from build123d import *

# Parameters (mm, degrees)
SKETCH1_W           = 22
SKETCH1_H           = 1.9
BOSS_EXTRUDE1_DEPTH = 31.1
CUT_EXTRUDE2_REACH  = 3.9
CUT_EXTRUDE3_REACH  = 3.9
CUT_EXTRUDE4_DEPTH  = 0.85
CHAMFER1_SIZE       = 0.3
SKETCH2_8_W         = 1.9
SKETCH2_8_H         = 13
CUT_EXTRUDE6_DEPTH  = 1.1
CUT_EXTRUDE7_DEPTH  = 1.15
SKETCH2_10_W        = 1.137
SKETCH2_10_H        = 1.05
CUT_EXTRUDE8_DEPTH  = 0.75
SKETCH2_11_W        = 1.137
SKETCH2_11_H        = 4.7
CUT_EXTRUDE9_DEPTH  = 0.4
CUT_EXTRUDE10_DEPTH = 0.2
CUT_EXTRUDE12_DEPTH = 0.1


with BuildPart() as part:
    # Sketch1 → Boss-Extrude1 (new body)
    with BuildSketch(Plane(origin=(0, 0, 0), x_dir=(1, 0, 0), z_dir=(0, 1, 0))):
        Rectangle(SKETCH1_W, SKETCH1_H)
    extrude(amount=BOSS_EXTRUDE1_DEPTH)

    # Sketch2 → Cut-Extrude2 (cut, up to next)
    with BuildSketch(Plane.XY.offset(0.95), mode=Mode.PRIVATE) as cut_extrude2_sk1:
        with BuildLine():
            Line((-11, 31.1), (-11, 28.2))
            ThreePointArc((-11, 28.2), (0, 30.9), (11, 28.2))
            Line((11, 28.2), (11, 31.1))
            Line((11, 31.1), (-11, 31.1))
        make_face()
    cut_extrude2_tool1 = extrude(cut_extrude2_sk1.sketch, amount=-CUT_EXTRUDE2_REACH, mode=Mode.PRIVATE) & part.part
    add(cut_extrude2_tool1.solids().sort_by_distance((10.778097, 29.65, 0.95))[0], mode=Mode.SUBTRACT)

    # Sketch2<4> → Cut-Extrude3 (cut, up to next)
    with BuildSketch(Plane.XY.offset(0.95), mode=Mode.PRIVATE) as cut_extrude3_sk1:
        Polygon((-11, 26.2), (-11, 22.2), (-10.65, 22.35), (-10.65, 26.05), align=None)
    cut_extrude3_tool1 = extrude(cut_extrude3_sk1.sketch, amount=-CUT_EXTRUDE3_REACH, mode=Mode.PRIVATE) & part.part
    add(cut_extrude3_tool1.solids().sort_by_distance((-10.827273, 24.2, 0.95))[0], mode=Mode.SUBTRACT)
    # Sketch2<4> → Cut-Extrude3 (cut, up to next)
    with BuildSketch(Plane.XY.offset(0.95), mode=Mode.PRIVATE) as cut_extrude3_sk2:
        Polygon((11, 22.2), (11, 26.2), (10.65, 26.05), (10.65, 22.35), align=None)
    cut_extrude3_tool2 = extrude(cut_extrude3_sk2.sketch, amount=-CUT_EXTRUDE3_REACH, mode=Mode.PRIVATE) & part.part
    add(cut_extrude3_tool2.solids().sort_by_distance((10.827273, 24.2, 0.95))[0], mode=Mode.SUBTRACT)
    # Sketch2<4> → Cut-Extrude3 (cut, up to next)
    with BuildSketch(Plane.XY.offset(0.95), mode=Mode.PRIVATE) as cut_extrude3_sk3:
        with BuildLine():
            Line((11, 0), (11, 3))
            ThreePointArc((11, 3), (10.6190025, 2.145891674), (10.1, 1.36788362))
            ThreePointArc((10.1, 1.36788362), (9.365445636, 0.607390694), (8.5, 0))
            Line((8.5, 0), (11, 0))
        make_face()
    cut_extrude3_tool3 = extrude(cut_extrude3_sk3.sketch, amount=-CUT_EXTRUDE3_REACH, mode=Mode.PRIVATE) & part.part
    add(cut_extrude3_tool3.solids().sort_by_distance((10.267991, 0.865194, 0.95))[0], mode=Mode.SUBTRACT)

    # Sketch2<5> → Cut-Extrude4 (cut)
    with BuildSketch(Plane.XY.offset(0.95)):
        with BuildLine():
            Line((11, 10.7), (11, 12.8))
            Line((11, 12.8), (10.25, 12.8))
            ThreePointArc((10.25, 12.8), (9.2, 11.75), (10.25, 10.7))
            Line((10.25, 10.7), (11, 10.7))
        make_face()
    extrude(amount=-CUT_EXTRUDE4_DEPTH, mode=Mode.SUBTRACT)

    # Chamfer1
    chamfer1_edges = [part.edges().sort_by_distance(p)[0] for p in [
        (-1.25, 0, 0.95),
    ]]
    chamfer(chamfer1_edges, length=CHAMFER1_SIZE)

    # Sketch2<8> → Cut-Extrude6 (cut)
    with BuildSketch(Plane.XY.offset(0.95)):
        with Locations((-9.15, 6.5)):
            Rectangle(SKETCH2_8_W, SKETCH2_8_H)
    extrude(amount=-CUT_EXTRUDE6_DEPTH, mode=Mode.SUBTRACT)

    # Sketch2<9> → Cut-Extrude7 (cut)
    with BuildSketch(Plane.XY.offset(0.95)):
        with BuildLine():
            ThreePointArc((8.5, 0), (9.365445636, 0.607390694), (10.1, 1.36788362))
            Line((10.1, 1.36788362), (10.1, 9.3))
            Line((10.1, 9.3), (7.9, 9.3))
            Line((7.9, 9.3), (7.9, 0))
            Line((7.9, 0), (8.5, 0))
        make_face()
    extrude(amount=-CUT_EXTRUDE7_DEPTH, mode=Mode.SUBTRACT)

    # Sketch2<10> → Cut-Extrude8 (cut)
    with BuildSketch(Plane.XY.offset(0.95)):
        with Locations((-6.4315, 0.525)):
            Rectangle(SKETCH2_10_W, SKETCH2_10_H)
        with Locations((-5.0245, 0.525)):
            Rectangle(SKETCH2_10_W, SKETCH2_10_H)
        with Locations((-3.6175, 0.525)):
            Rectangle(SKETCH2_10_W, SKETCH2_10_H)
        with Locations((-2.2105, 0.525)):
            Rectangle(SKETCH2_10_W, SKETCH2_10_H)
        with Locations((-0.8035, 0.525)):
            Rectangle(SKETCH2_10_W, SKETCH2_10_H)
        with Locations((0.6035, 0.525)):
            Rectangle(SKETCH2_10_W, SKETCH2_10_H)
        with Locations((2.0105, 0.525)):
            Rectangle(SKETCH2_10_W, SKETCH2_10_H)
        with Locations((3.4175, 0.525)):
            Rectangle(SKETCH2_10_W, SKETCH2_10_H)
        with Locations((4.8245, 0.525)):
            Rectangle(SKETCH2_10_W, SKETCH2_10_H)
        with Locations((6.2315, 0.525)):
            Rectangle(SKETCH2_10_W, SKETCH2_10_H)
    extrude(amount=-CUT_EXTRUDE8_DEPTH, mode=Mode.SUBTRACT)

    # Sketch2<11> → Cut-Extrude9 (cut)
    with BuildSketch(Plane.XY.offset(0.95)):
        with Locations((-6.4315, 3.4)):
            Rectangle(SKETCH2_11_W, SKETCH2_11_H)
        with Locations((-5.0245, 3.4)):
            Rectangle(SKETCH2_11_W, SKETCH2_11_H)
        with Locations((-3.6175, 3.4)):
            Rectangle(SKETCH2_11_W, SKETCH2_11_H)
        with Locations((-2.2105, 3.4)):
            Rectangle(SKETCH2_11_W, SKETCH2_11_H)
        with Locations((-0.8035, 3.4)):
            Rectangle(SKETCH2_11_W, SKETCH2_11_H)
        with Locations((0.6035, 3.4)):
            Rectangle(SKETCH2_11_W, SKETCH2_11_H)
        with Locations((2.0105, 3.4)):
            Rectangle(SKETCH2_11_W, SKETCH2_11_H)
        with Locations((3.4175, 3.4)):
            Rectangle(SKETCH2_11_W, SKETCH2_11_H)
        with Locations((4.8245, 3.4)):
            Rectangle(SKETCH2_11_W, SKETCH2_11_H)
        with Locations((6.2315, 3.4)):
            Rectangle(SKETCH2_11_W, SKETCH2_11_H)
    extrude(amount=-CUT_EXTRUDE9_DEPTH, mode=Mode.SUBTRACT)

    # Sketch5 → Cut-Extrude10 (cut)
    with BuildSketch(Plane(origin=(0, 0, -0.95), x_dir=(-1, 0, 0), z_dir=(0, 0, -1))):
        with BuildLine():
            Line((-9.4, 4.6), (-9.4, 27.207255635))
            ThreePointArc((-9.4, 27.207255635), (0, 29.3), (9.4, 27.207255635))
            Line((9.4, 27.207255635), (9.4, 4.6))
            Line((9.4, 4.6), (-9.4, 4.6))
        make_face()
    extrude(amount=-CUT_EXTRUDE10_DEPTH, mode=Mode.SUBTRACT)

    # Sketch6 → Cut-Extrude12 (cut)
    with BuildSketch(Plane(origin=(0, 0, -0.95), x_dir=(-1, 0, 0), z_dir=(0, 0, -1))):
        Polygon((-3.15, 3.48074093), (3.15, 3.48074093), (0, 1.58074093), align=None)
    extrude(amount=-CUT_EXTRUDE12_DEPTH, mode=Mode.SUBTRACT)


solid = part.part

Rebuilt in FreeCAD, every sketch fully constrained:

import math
import FreeCAD as App
import Part
import Sketcher

V = App.Vector


def edges_at(feature, points):
    """Names of the edges that pass closest to the given points."""
    edges = feature.Shape.Edges
    near = lambda p: min(range(len(edges)), key=lambda i: edges[i].distToShape(Part.Vertex(*p))[0])
    return sorted({f"Edge{near(p) + 1}" for p in points})


def add_polygon(sketch, points):
    """Adds a closed chain of lines whose ends are joined by coincident constraints."""
    first, n = sketch.GeometryCount, len(points)
    for a, b in zip(points, points[1:] + points[:1]):
        sketch.addGeometry(Part.LineSegment(App.Vector(*a, 0), App.Vector(*b, 0)), False)
    for i in range(n):
        sketch.addConstraint(Sketcher.Constraint("Coincident", first + i, 2, first + (i + 1) % n, 1))

doc = App.newDocument("Part")
params = doc.addObject("Spreadsheet::Sheet", "Params")
for row, (alias, value) in enumerate([
    ("sketch1_width", "22 mm"),
    ("sketch1_height", "1.9 mm"),
    ("pad1_length", "31.1 mm"),
    ("sketch2_width", "22 mm"),
    ("sketch2_height", "2.9 mm"),
    ("sketch3_height", "4 mm"),
    ("sketch3_height2", "3.7 mm"),
    ("sketch4_height", "4 mm"),
    ("sketch4_height2", "3.7 mm"),
    ("sketch5_height", "3 mm"),
    ("sketch5_radius", "5.55 mm"),
    ("sketch5_width", "2.5 mm"),
    ("sketch6_radius", "1.05 mm"),
    ("sketch6_width", "0.75 mm"),
    ("pocket5_length", "0.85 mm"),
    ("chamfer_size", "0.3 mm"),
    ("sketch7_height", "13 mm"),
    ("sketch7_width", "1.9 mm"),
    ("pocket6_length", "1.1 mm"),
    ("sketch8_radius", "5.55 mm"),
    ("sketch8_width", "2.2 mm"),
    ("sketch8_width2", "0.6 mm"),
    ("sketch8_height", "9.3 mm"),
    ("pocket7_length", "1.15 mm"),
    ("sketch9_height", "1.05 mm"),
    ("pocket8_length", "0.75 mm"),
    ("sketch10_height", "4.7 mm"),
    ("pocket9_length", "0.4 mm"),
    ("sketch11_width", "18.8 mm"),
    ("pocket10_length", "0.2 mm"),
    ("sketch12_width", "6.3 mm"),
    ("pocket11_length", "0.1 mm"),
], start=1):
    params.set(f"A{row}", alias)
    params.set(f"B{row}", "=" + value)
    params.setAlias(f"B{row}", alias)

body = doc.addObject("PartDesign::Body", "Body")

# Sketch on XZ plane
sketch1 = body.newObject("Sketcher::SketchObject", "Sketch")
sketch1.AttachmentSupport = (doc.getObject("XZ_Plane"), [""])
sketch1.MapMode = "FlatFace"
add_polygon(sketch1, [(-11, -0.9), (-11, 0.9), (11, 0.9), (11, -0.9)])  # lines 0-3
sketch1.addConstraint(Sketcher.Constraint("Vertical", 0))
sketch1.addConstraint(Sketcher.Constraint("Horizontal", 1))
sketch1.addConstraint(Sketcher.Constraint("Vertical", 2))
sketch1.addConstraint(Sketcher.Constraint("Horizontal", 3))
sketch1.addConstraint(Sketcher.Constraint("Symmetric", 0, 2, 2, 2, -1, 1))
sketch1.addConstraint(Sketcher.Constraint("DistanceX", 1, 1, 1, 2, 22.0))
sketch1.addConstraint(Sketcher.Constraint("DistanceY", 0, 1, 0, 2, 1.9))
sketch1.setExpression("Constraints[9]", "Params.sketch1_width")
sketch1.setExpression("Constraints[10]", "Params.sketch1_height")
pad1 = body.newObject("PartDesign::Pad", "Pad")
pad1.Profile = sketch1
pad1.setExpression("Length", "Params.pad1_length")
pad1.Reversed = True

# Sketch on XY plane
sketch2 = body.newObject("Sketcher::SketchObject", "Sketch001")
sketch2.AttachmentSupport = (doc.getObject("XY_Plane"), [""])
sketch2.MapMode = "FlatFace"
sketch2.AttachmentOffset = App.Placement(V(0, 0, 0.95), App.Rotation())
sketch2.addGeometry(Part.LineSegment(V(-11, 31.1, 0), V(-11, 28.2, 0)), False)
sketch2.addGeometry(Part.ArcOfCircle(Part.Circle(V(0, 7.1, 0), V(0, 0, 1), 23.8), math.radians(62), math.radians(118)), False)
sketch2.addGeometry(Part.LineSegment(V(11, 28.2, 0), V(11, 31.1, 0)), False)
sketch2.addGeometry(Part.LineSegment(V(11, 31.1, 0), V(-11, 31.1, 0)), False)
sketch2.addConstraint(Sketcher.Constraint("Coincident", 0, 2, 1, 2))
sketch2.addConstraint(Sketcher.Constraint("Coincident", 1, 1, 2, 1))
sketch2.addConstraint(Sketcher.Constraint("Coincident", 2, 2, 3, 1))
sketch2.addConstraint(Sketcher.Constraint("Coincident", 3, 2, 0, 1))
sketch2.addConstraint(Sketcher.Constraint("Vertical", 0))
sketch2.addConstraint(Sketcher.Constraint("Vertical", 2))
sketch2.addConstraint(Sketcher.Constraint("Horizontal", 3))
sketch2.addConstraint(Sketcher.Constraint("Symmetric", 0, 2, 1, 1, -2))
sketch2.addConstraint(Sketcher.Constraint("DistanceX", 3, 2, 3, 1, 22.0))
sketch2.addConstraint(Sketcher.Constraint("DistanceY", 0, 2, 0, 1, 2.9))
sketch2.addConstraint(Sketcher.Constraint("DistanceY", -1, 1, 0, 2, 28.2))
sketch2.addConstraint(Sketcher.Constraint("Radius", 1, 23.757407))
sketch2.setExpression("Constraints[8]", "Params.sketch2_width")
sketch2.setExpression("Constraints[9]", "Params.sketch2_height")
pocket1 = body.newObject("PartDesign::Pocket", "Pocket")
pocket1.Profile = sketch2
pocket1.Type = "UpToFirst"

# Sketch on XY plane
sketch3 = body.newObject("Sketcher::SketchObject", "Sketch002")
sketch3.AttachmentSupport = (doc.getObject("XY_Plane"), [""])
sketch3.MapMode = "FlatFace"
sketch3.AttachmentOffset = App.Placement(V(0, 0, 0.95), App.Rotation())
add_polygon(sketch3, [(-11, 26.2), (-11, 22.2), (-10.65, 22.35), (-10.65, 26.05)])  # lines 0-3
sketch3.addConstraint(Sketcher.Constraint("Vertical", 0))
sketch3.addConstraint(Sketcher.Constraint("Vertical", 2))
sketch3.addConstraint(Sketcher.Constraint("Equal", 1, 3))
sketch3.addConstraint(Sketcher.Constraint("DistanceY", 0, 2, 0, 1, 4.0))
sketch3.addConstraint(Sketcher.Constraint("DistanceY", 2, 1, 2, 2, 3.7))
sketch3.addConstraint(Sketcher.Constraint("DistanceX", 0, 2, -1, 1, 11.0))
sketch3.addConstraint(Sketcher.Constraint("DistanceY", -1, 1, 0, 2, 22.2))
sketch3.addConstraint(Sketcher.Constraint("DistanceX", 1, 2, -1, 1, 10.65))
sketch3.setExpression("Constraints[7]", "Params.sketch3_height")
sketch3.setExpression("Constraints[8]", "Params.sketch3_height2")
pocket2 = body.newObject("PartDesign::Pocket", "Pocket001")
pocket2.Profile = sketch3
pocket2.Type = "UpToFirst"

# Sketch on XY plane
sketch4 = body.newObject("Sketcher::SketchObject", "Sketch003")
sketch4.AttachmentSupport = (doc.getObject("XY_Plane"), [""])
sketch4.MapMode = "FlatFace"
sketch4.AttachmentOffset = App.Placement(V(0, 0, 0.95), App.Rotation())
add_polygon(sketch4, [(11, 22.2), (11, 26.2), (10.65, 26.05), (10.65, 22.35)])  # lines 0-3
sketch4.addConstraint(Sketcher.Constraint("Vertical", 0))
sketch4.addConstraint(Sketcher.Constraint("Vertical", 2))
sketch4.addConstraint(Sketcher.Constraint("Equal", 1, 3))
sketch4.addConstraint(Sketcher.Constraint("DistanceY", 0, 1, 0, 2, 4.0))
sketch4.addConstraint(Sketcher.Constraint("DistanceY", 2, 2, 2, 1, 3.7))
sketch4.addConstraint(Sketcher.Constraint("DistanceX", -1, 1, 0, 2, 11.0))
sketch4.addConstraint(Sketcher.Constraint("DistanceY", -1, 1, 0, 2, 26.2))
sketch4.addConstraint(Sketcher.Constraint("DistanceX", -1, 1, 1, 2, 10.65))
sketch4.setExpression("Constraints[7]", "Params.sketch4_height")
sketch4.setExpression("Constraints[8]", "Params.sketch4_height2")
pocket3 = body.newObject("PartDesign::Pocket", "Pocket002")
pocket3.Profile = sketch4
pocket3.Type = "UpToFirst"

# Sketch on XY plane
sketch5 = body.newObject("Sketcher::SketchObject", "Sketch004")
sketch5.AttachmentSupport = (doc.getObject("XY_Plane"), [""])
sketch5.MapMode = "FlatFace"
sketch5.AttachmentOffset = App.Placement(V(0, 0, 0.95), App.Rotation())
sketch5.addGeometry(Part.LineSegment(V(11, 0, 0), V(11, 3, 0)), False)
sketch5.addGeometry(Part.ArcOfCircle(Part.Circle(V(5.8, 4.8, 0), V(0, 0, 1), 5.5), math.radians(-38.54), math.radians(-19.21)), False)
sketch5.addGeometry(Part.ArcOfCircle(Part.Circle(V(5.8, 4.8, 0), V(0, 0, 1), 5.5), math.radians(-60), math.radians(-39)), False)
sketch5.addGeometry(Part.LineSegment(V(8.5, 0, 0), V(11, 0, 0)), False)
sketch5.addConstraint(Sketcher.Constraint("Coincident", 0, 2, 1, 2))
sketch5.addConstraint(Sketcher.Constraint("Tangent", 1, 1, 2, 2))
sketch5.addConstraint(Sketcher.Constraint("Coincident", 2, 1, 3, 1))
sketch5.addConstraint(Sketcher.Constraint("Coincident", 3, 2, 0, 1))
sketch5.addConstraint(Sketcher.Constraint("Vertical", 0))
sketch5.addConstraint(Sketcher.Constraint("Horizontal", 3))
sketch5.addConstraint(Sketcher.Constraint("Equal", 1, 2))
sketch5.addConstraint(Sketcher.Constraint("PointOnObject", 2, 1, -1))
sketch5.addConstraint(Sketcher.Constraint("DistanceY", 0, 1, 0, 2, 3.0))
sketch5.addConstraint(Sketcher.Constraint("Radius", 1, 5.55))
sketch5.addConstraint(Sketcher.Constraint("DistanceX", 3, 1, 3, 2, 2.5))
sketch5.addConstraint(Sketcher.Constraint("DistanceX", -1, 1, 0, 2, 11.0))
sketch5.addConstraint(Sketcher.Constraint("DistanceX", -1, 1, 1, 1, 10.1))
sketch5.setExpression("Constraints[8]", "Params.sketch5_height")
sketch5.setExpression("Constraints[9]", "Params.sketch5_radius")
sketch5.setExpression("Constraints[10]", "Params.sketch5_width")
pocket4 = body.newObject("PartDesign::Pocket", "Pocket003")
pocket4.Profile = sketch5
pocket4.Type = "UpToFirst"

# Sketch on XY plane
sketch6 = body.newObject("Sketcher::SketchObject", "Sketch005")
sketch6.AttachmentSupport = (doc.getObject("XY_Plane"), [""])
sketch6.MapMode = "FlatFace"
sketch6.AttachmentOffset = App.Placement(V(0, 0, 0.95), App.Rotation())
sketch6.addGeometry(Part.LineSegment(V(11, 10.7, 0), V(11, 12.8, 0)), False)
sketch6.addGeometry(Part.LineSegment(V(11, 12.8, 0), V(10.2, 12.8, 0)), False)
sketch6.addGeometry(Part.ArcOfCircle(Part.Circle(V(10.2, 11.8, 0), V(0, 0, 1), 1.1), math.radians(90), math.radians(270)), False)
sketch6.addGeometry(Part.LineSegment(V(10.2, 10.7, 0), V(11, 10.7, 0)), False)
sketch6.addConstraint(Sketcher.Constraint("Coincident", 0, 2, 1, 1))
sketch6.addConstraint(Sketcher.Constraint("Tangent", 1, 2, 2, 1))
sketch6.addConstraint(Sketcher.Constraint("Tangent", 2, 2, 3, 1))
sketch6.addConstraint(Sketcher.Constraint("Coincident", 3, 2, 0, 1))
sketch6.addConstraint(Sketcher.Constraint("Vertical", 0))
sketch6.addConstraint(Sketcher.Constraint("Horizontal", 1))
sketch6.addConstraint(Sketcher.Constraint("Horizontal", 3))
sketch6.addConstraint(Sketcher.Constraint("Radius", 2, 1.05))
sketch6.addConstraint(Sketcher.Constraint("DistanceX", -1, 1, 0, 2, 11.0))
sketch6.addConstraint(Sketcher.Constraint("DistanceX", 1, 2, 1, 1, 0.75))
sketch6.addConstraint(Sketcher.Constraint("DistanceY", -1, 1, 0, 2, 12.8))
sketch6.setExpression("Constraints[7]", "Params.sketch6_radius")
sketch6.setExpression("Constraints[9]", "Params.sketch6_width")
pocket5 = body.newObject("PartDesign::Pocket", "Pocket004")
pocket5.Profile = sketch6
pocket5.setExpression("Length", "Params.pocket5_length")
doc.recompute()

chamfer = body.newObject("PartDesign::Chamfer", "Chamfer")
chamfer.Base = (pocket5, edges_at(pocket5, [(-1.25, 0, 0.95)]))
chamfer.setExpression("Size", "Params.chamfer_size")

# Sketch on XY plane
sketch7 = body.newObject("Sketcher::SketchObject", "Sketch006")
sketch7.AttachmentSupport = (doc.getObject("XY_Plane"), [""])
sketch7.MapMode = "FlatFace"
sketch7.AttachmentOffset = App.Placement(V(0, 0, 0.95), App.Rotation())
add_polygon(sketch7, [(-10.1, 13), (-10.1, 0), (-8.2, 0), (-8.2, 13)])  # lines 0-3
sketch7.addConstraint(Sketcher.Constraint("Vertical", 0))
sketch7.addConstraint(Sketcher.Constraint("Horizontal", 1))
sketch7.addConstraint(Sketcher.Constraint("Vertical", 2))
sketch7.addConstraint(Sketcher.Constraint("Horizontal", 3))
sketch7.addConstraint(Sketcher.Constraint("PointOnObject", 0, 2, -1))
sketch7.addConstraint(Sketcher.Constraint("DistanceY", 0, 2, 0, 1, 13.0))
sketch7.addConstraint(Sketcher.Constraint("DistanceX", 1, 1, 1, 2, 1.9))
sketch7.addConstraint(Sketcher.Constraint("DistanceX", 0, 2, -1, 1, 10.1))
sketch7.setExpression("Constraints[9]", "Params.sketch7_height")
sketch7.setExpression("Constraints[10]", "Params.sketch7_width")
pocket6 = body.newObject("PartDesign::Pocket", "Pocket005")
pocket6.Profile = sketch7
pocket6.setExpression("Length", "Params.pocket6_length")

# Sketch on XY plane
sketch8 = body.newObject("Sketcher::SketchObject", "Sketch007")
sketch8.AttachmentSupport = (doc.getObject("XY_Plane"), [""])
sketch8.MapMode = "FlatFace"
sketch8.AttachmentOffset = App.Placement(V(0, 0, 0.95), App.Rotation())
sketch8.addGeometry(Part.ArcOfCircle(Part.Circle(V(5.8, 4.8, 0), V(0, 0, 1), 5.5), math.radians(-60), math.radians(-39)), False)
sketch8.addGeometry(Part.LineSegment(V(10.1, 1.4, 0), V(10.1, 9.3, 0)), False)
sketch8.addGeometry(Part.LineSegment(V(10.1, 9.3, 0), V(7.9, 9.3, 0)), False)
sketch8.addGeometry(Part.LineSegment(V(7.9, 9.3, 0), V(7.9, 0, 0)), False)
sketch8.addGeometry(Part.LineSegment(V(7.9, 0, 0), V(8.5, 0, 0)), False)
sketch8.addConstraint(Sketcher.Constraint("Coincident", 0, 2, 1, 1))
sketch8.addConstraint(Sketcher.Constraint("Coincident", 1, 2, 2, 1))
sketch8.addConstraint(Sketcher.Constraint("Coincident", 2, 2, 3, 1))
sketch8.addConstraint(Sketcher.Constraint("Coincident", 3, 2, 4, 1))
sketch8.addConstraint(Sketcher.Constraint("Coincident", 4, 2, 0, 1))
sketch8.addConstraint(Sketcher.Constraint("Vertical", 1))
sketch8.addConstraint(Sketcher.Constraint("Horizontal", 2))
sketch8.addConstraint(Sketcher.Constraint("Vertical", 3))
sketch8.addConstraint(Sketcher.Constraint("Horizontal", 4))
sketch8.addConstraint(Sketcher.Constraint("PointOnObject", 3, 2, -1))
sketch8.addConstraint(Sketcher.Constraint("Radius", 0, 5.55))
sketch8.addConstraint(Sketcher.Constraint("DistanceX", 2, 2, 2, 1, 2.2))
sketch8.addConstraint(Sketcher.Constraint("DistanceX", 4, 1, 4, 2, 0.6))
sketch8.addConstraint(Sketcher.Constraint("DistanceY", 3, 2, 3, 1, 9.3))
sketch8.addConstraint(Sketcher.Constraint("DistanceX", -1, 1, 0, 2, 10.1))
sketch8.addConstraint(Sketcher.Constraint("DistanceY", 1, 1, 1, 2, 7.932116))
sketch8.setExpression("Constraints[10]", "Params.sketch8_radius")
sketch8.setExpression("Constraints[11]", "Params.sketch8_width")
sketch8.setExpression("Constraints[12]", "Params.sketch8_width2")
sketch8.setExpression("Constraints[13]", "Params.sketch8_height")
pocket7 = body.newObject("PartDesign::Pocket", "Pocket006")
pocket7.Profile = sketch8
pocket7.setExpression("Length", "Params.pocket7_length")

# Sketch on XY plane
sketch9 = body.newObject("Sketcher::SketchObject", "Sketch008")
sketch9.AttachmentSupport = (doc.getObject("XY_Plane"), [""])
sketch9.MapMode = "FlatFace"
sketch9.AttachmentOffset = App.Placement(V(0, 0, 0.95), App.Rotation())
add_polygon(sketch9, [(-7, 1.1), (-7, 0), (-5.9, 0), (-5.9, 1.1)])  # lines 0-3
add_polygon(sketch9, [(-5.6, 1.1), (-5.6, 0), (-4.5, 0), (-4.5, 1.1)])  # lines 4-7
add_polygon(sketch9, [(-4.2, 1.1), (-4.2, 0), (-3, 0), (-3, 1.1)])  # lines 8-11
add_polygon(sketch9, [(-2.8, 1.1), (-2.8, 0), (-1.6, 0), (-1.6, 1.1)])  # lines 12-15
add_polygon(sketch9, [(-1.4, 1.1), (-1.4, 0), (-0.2, 0), (-0.2, 1.1)])  # lines 16-19
add_polygon(sketch9, [(0, 1.1), (0, 0), (1.2, 0), (1.2, 1.1)])  # lines 20-23
add_polygon(sketch9, [(1.4, 1.1), (1.4, 0), (2.6, 0), (2.6, 1.1)])  # lines 24-27
add_polygon(sketch9, [(2.8, 1.1), (2.8, 0), (4, 0), (4, 1.1)])  # lines 28-31
add_polygon(sketch9, [(4.3, 1.1), (4.3, 0), (5.4, 0), (5.4, 1.1)])  # lines 32-35
add_polygon(sketch9, [(5.7, 1.1), (5.7, 0), (6.8, 0), (6.8, 1.1)])  # lines 36-39
sketch9.addConstraint(Sketcher.Constraint("Vertical", 0))
sketch9.addConstraint(Sketcher.Constraint("Horizontal", 1))
sketch9.addConstraint(Sketcher.Constraint("Vertical", 2))
sketch9.addConstraint(Sketcher.Constraint("Horizontal", 3))
sketch9.addConstraint(Sketcher.Constraint("Vertical", 4))
sketch9.addConstraint(Sketcher.Constraint("Horizontal", 5))
sketch9.addConstraint(Sketcher.Constraint("Vertical", 6))
sketch9.addConstraint(Sketcher.Constraint("Horizontal", 7))
sketch9.addConstraint(Sketcher.Constraint("Vertical", 8))
sketch9.addConstraint(Sketcher.Constraint("Horizontal", 9))
sketch9.addConstraint(Sketcher.Constraint("Vertical", 10))
sketch9.addConstraint(Sketcher.Constraint("Horizontal", 11))
sketch9.addConstraint(Sketcher.Constraint("Vertical", 12))
sketch9.addConstraint(Sketcher.Constraint("Horizontal", 13))
sketch9.addConstraint(Sketcher.Constraint("Vertical", 14))
sketch9.addConstraint(Sketcher.Constraint("Horizontal", 15))
sketch9.addConstraint(Sketcher.Constraint("Vertical", 16))
sketch9.addConstraint(Sketcher.Constraint("Horizontal", 17))
sketch9.addConstraint(Sketcher.Constraint("Vertical", 18))
sketch9.addConstraint(Sketcher.Constraint("Horizontal", 19))
sketch9.addConstraint(Sketcher.Constraint("Vertical", 20))
sketch9.addConstraint(Sketcher.Constraint("Horizontal", 21))
sketch9.addConstraint(Sketcher.Constraint("Vertical", 22))
sketch9.addConstraint(Sketcher.Constraint("Horizontal", 23))
sketch9.addConstraint(Sketcher.Constraint("Vertical", 24))
sketch9.addConstraint(Sketcher.Constraint("Horizontal", 25))
sketch9.addConstraint(Sketcher.Constraint("Vertical", 26))
sketch9.addConstraint(Sketcher.Constraint("Horizontal", 27))
sketch9.addConstraint(Sketcher.Constraint("Vertical", 28))
sketch9.addConstraint(Sketcher.Constraint("Horizontal", 29))
sketch9.addConstraint(Sketcher.Constraint("Vertical", 30))
sketch9.addConstraint(Sketcher.Constraint("Horizontal", 31))
sketch9.addConstraint(Sketcher.Constraint("Vertical", 32))
sketch9.addConstraint(Sketcher.Constraint("Horizontal", 33))
sketch9.addConstraint(Sketcher.Constraint("Vertical", 34))
sketch9.addConstraint(Sketcher.Constraint("Horizontal", 35))
sketch9.addConstraint(Sketcher.Constraint("Vertical", 36))
sketch9.addConstraint(Sketcher.Constraint("Horizontal", 37))
sketch9.addConstraint(Sketcher.Constraint("Vertical", 38))
sketch9.addConstraint(Sketcher.Constraint("Horizontal", 39))
sketch9.addConstraint(Sketcher.Constraint("PointOnObject", 0, 2, -1))
sketch9.addConstraint(Sketcher.Constraint("PointOnObject", 4, 2, -1))
sketch9.addConstraint(Sketcher.Constraint("PointOnObject", 8, 2, -1))
sketch9.addConstraint(Sketcher.Constraint("PointOnObject", 12, 2, -1))
sketch9.addConstraint(Sketcher.Constraint("PointOnObject", 16, 2, -1))
sketch9.addConstraint(Sketcher.Constraint("PointOnObject", 20, 2, -1))
sketch9.addConstraint(Sketcher.Constraint("PointOnObject", 24, 2, -1))
sketch9.addConstraint(Sketcher.Constraint("PointOnObject", 28, 2, -1))
sketch9.addConstraint(Sketcher.Constraint("PointOnObject", 32, 2, -1))
sketch9.addConstraint(Sketcher.Constraint("PointOnObject", 36, 2, -1))
sketch9.addConstraint(Sketcher.Constraint("Horizontal", 3, 2, 6, 2))
sketch9.addConstraint(Sketcher.Constraint("Horizontal", 7, 2, 10, 2))
sketch9.addConstraint(Sketcher.Constraint("Horizontal", 11, 2, 14, 2))
sketch9.addConstraint(Sketcher.Constraint("Horizontal", 15, 2, 18, 2))
sketch9.addConstraint(Sketcher.Constraint("Horizontal", 19, 2, 22, 2))
sketch9.addConstraint(Sketcher.Constraint("Horizontal", 23, 2, 26, 2))
sketch9.addConstraint(Sketcher.Constraint("Horizontal", 27, 2, 30, 2))
sketch9.addConstraint(Sketcher.Constraint("Horizontal", 31, 2, 34, 2))
sketch9.addConstraint(Sketcher.Constraint("Horizontal", 35, 2, 38, 2))
sketch9.addConstraint(Sketcher.Constraint("Equal", 3, 5))
sketch9.addConstraint(Sketcher.Constraint("Equal", 7, 9))
sketch9.addConstraint(Sketcher.Constraint("Equal", 11, 13))
sketch9.addConstraint(Sketcher.Constraint("Equal", 15, 17))
sketch9.addConstraint(Sketcher.Constraint("Equal", 19, 21))
sketch9.addConstraint(Sketcher.Constraint("Equal", 23, 25))
sketch9.addConstraint(Sketcher.Constraint("Equal", 27, 29))
sketch9.addConstraint(Sketcher.Constraint("Equal", 31, 33))
sketch9.addConstraint(Sketcher.Constraint("Equal", 35, 37))
sketch9.addConstraint(Sketcher.Constraint("DistanceX", 0, 2, -1, 1, 7.0))
sketch9.addConstraint(Sketcher.Constraint("DistanceY", 0, 2, 0, 1, 1.05))
sketch9.addConstraint(Sketcher.Constraint("DistanceX", -1, 1, 37, 2, 6.8))
sketch9.addConstraint(Sketcher.Constraint("DistanceX", 1, 1, 1, 2, 1.137))
sketch9.addConstraint(Sketcher.Constraint("DistanceX", 1, 2, 4, 2, 0.27))
sketch9.addConstraint(Sketcher.Constraint("DistanceX", 5, 2, 8, 2, 0.27))
sketch9.addConstraint(Sketcher.Constraint("DistanceX", 9, 2, 12, 2, 0.27))
sketch9.addConstraint(Sketcher.Constraint("DistanceX", 13, 2, 16, 2, 0.27))
sketch9.addConstraint(Sketcher.Constraint("DistanceX", 17, 2, 20, 2, 0.27))
sketch9.addConstraint(Sketcher.Constraint("DistanceX", 21, 2, 24, 2, 0.27))
sketch9.addConstraint(Sketcher.Constraint("DistanceX", 25, 2, 28, 2, 0.27))
sketch9.addConstraint(Sketcher.Constraint("DistanceX", 29, 2, 32, 2, 0.27))
sketch9.setExpression("Constraints[109]", "Params.sketch9_height")
pocket8 = body.newObject("PartDesign::Pocket", "Pocket007")
pocket8.Profile = sketch9
pocket8.setExpression("Length", "Params.pocket8_length")

# Sketch on XY plane
sketch10 = body.newObject("Sketcher::SketchObject", "Sketch009")
sketch10.AttachmentSupport = (doc.getObject("XY_Plane"), [""])
sketch10.MapMode = "FlatFace"
sketch10.AttachmentOffset = App.Placement(V(0, 0, 0.95), App.Rotation())
add_polygon(sketch10, [(-7, 5.8), (-7, 1.1), (-5.9, 1.1), (-5.9, 5.8)])  # lines 0-3
add_polygon(sketch10, [(-5.6, 5.8), (-5.6, 1.1), (-4.5, 1.1), (-4.5, 5.8)])  # lines 4-7
add_polygon(sketch10, [(-4.2, 5.8), (-4.2, 1.1), (-3, 1.1), (-3, 5.8)])  # lines 8-11
add_polygon(sketch10, [(-2.8, 5.8), (-2.8, 1.1), (-1.6, 1.1), (-1.6, 5.8)])  # lines 12-15
add_polygon(sketch10, [(-1.4, 5.8), (-1.4, 1.1), (-0.2, 1.1), (-0.2, 5.8)])  # lines 16-19
add_polygon(sketch10, [(0, 5.8), (0, 1.1), (1.2, 1.1), (1.2, 5.8)])  # lines 20-23
add_polygon(sketch10, [(1.4, 5.8), (1.4, 1.1), (2.6, 1.1), (2.6, 5.8)])  # lines 24-27
add_polygon(sketch10, [(2.8, 5.8), (2.8, 1.1), (4, 1.1), (4, 5.8)])  # lines 28-31
add_polygon(sketch10, [(4.3, 5.8), (4.3, 1.1), (5.4, 1.1), (5.4, 5.8)])  # lines 32-35
add_polygon(sketch10, [(5.7, 5.8), (5.7, 1.1), (6.8, 1.1), (6.8, 5.8)])  # lines 36-39
sketch10.addConstraint(Sketcher.Constraint("Vertical", 0))
sketch10.addConstraint(Sketcher.Constraint("Horizontal", 1))
sketch10.addConstraint(Sketcher.Constraint("Vertical", 2))
sketch10.addConstraint(Sketcher.Constraint("Horizontal", 3))
sketch10.addConstraint(Sketcher.Constraint("Vertical", 4))
sketch10.addConstraint(Sketcher.Constraint("Horizontal", 5))
sketch10.addConstraint(Sketcher.Constraint("Vertical", 6))
sketch10.addConstraint(Sketcher.Constraint("Horizontal", 7))
sketch10.addConstraint(Sketcher.Constraint("Vertical", 8))
sketch10.addConstraint(Sketcher.Constraint("Horizontal", 9))
sketch10.addConstraint(Sketcher.Constraint("Vertical", 10))
sketch10.addConstraint(Sketcher.Constraint("Horizontal", 11))
sketch10.addConstraint(Sketcher.Constraint("Vertical", 12))
sketch10.addConstraint(Sketcher.Constraint("Horizontal", 13))
sketch10.addConstraint(Sketcher.Constraint("Vertical", 14))
sketch10.addConstraint(Sketcher.Constraint("Horizontal", 15))
sketch10.addConstraint(Sketcher.Constraint("Vertical", 16))
sketch10.addConstraint(Sketcher.Constraint("Horizontal", 17))
sketch10.addConstraint(Sketcher.Constraint("Vertical", 18))
sketch10.addConstraint(Sketcher.Constraint("Horizontal", 19))
sketch10.addConstraint(Sketcher.Constraint("Vertical", 20))
sketch10.addConstraint(Sketcher.Constraint("Horizontal", 21))
sketch10.addConstraint(Sketcher.Constraint("Vertical", 22))
sketch10.addConstraint(Sketcher.Constraint("Horizontal", 23))
sketch10.addConstraint(Sketcher.Constraint("Vertical", 24))
sketch10.addConstraint(Sketcher.Constraint("Horizontal", 25))
sketch10.addConstraint(Sketcher.Constraint("Vertical", 26))
sketch10.addConstraint(Sketcher.Constraint("Horizontal", 27))
sketch10.addConstraint(Sketcher.Constraint("Vertical", 28))
sketch10.addConstraint(Sketcher.Constraint("Horizontal", 29))
sketch10.addConstraint(Sketcher.Constraint("Vertical", 30))
sketch10.addConstraint(Sketcher.Constraint("Horizontal", 31))
sketch10.addConstraint(Sketcher.Constraint("Vertical", 32))
sketch10.addConstraint(Sketcher.Constraint("Horizontal", 33))
sketch10.addConstraint(Sketcher.Constraint("Vertical", 34))
sketch10.addConstraint(Sketcher.Constraint("Horizontal", 35))
sketch10.addConstraint(Sketcher.Constraint("Vertical", 36))
sketch10.addConstraint(Sketcher.Constraint("Horizontal", 37))
sketch10.addConstraint(Sketcher.Constraint("Vertical", 38))
sketch10.addConstraint(Sketcher.Constraint("Horizontal", 39))
sketch10.addConstraint(Sketcher.Constraint("Horizontal", 1, 2, 4, 2))
sketch10.addConstraint(Sketcher.Constraint("Horizontal", 3, 2, 6, 2))
sketch10.addConstraint(Sketcher.Constraint("Horizontal", 5, 2, 8, 2))
sketch10.addConstraint(Sketcher.Constraint("Horizontal", 7, 2, 10, 2))
sketch10.addConstraint(Sketcher.Constraint("Horizontal", 9, 2, 12, 2))
sketch10.addConstraint(Sketcher.Constraint("Horizontal", 11, 2, 14, 2))
sketch10.addConstraint(Sketcher.Constraint("Horizontal", 13, 2, 16, 2))
sketch10.addConstraint(Sketcher.Constraint("Horizontal", 15, 2, 18, 2))
sketch10.addConstraint(Sketcher.Constraint("Horizontal", 17, 2, 20, 2))
sketch10.addConstraint(Sketcher.Constraint("Horizontal", 19, 2, 22, 2))
sketch10.addConstraint(Sketcher.Constraint("Horizontal", 21, 2, 24, 2))
sketch10.addConstraint(Sketcher.Constraint("Horizontal", 23, 2, 26, 2))
sketch10.addConstraint(Sketcher.Constraint("Horizontal", 25, 2, 28, 2))
sketch10.addConstraint(Sketcher.Constraint("Horizontal", 27, 2, 30, 2))
sketch10.addConstraint(Sketcher.Constraint("Horizontal", 29, 2, 32, 2))
sketch10.addConstraint(Sketcher.Constraint("Horizontal", 31, 2, 34, 2))
sketch10.addConstraint(Sketcher.Constraint("Horizontal", 33, 2, 36, 2))
sketch10.addConstraint(Sketcher.Constraint("Horizontal", 35, 2, 38, 2))
sketch10.addConstraint(Sketcher.Constraint("Equal", 3, 5))
sketch10.addConstraint(Sketcher.Constraint("Equal", 7, 9))
sketch10.addConstraint(Sketcher.Constraint("Equal", 11, 13))
sketch10.addConstraint(Sketcher.Constraint("Equal", 15, 17))
sketch10.addConstraint(Sketcher.Constraint("Equal", 19, 21))
sketch10.addConstraint(Sketcher.Constraint("Equal", 23, 25))
sketch10.addConstraint(Sketcher.Constraint("Equal", 27, 29))
sketch10.addConstraint(Sketcher.Constraint("Equal", 31, 33))
sketch10.addConstraint(Sketcher.Constraint("Equal", 35, 37))
sketch10.addConstraint(Sketcher.Constraint("DistanceY", 0, 2, 0, 1, 4.7))
sketch10.addConstraint(Sketcher.Constraint("DistanceX", 0, 2, -1, 1, 7.0))
sketch10.addConstraint(Sketcher.Constraint("DistanceX", -1, 1, 37, 2, 6.8))
sketch10.addConstraint(Sketcher.Constraint("DistanceX", 1, 1, 1, 2, 1.137))
sketch10.addConstraint(Sketcher.Constraint("DistanceY", -1, 1, 0, 2, 1.05))
sketch10.addConstraint(Sketcher.Constraint("DistanceX", 1, 2, 4, 2, 0.27))
sketch10.addConstraint(Sketcher.Constraint("DistanceX", 5, 2, 8, 2, 0.27))
sketch10.addConstraint(Sketcher.Constraint("DistanceX", 9, 2, 12, 2, 0.27))
sketch10.addConstraint(Sketcher.Constraint("DistanceX", 13, 2, 16, 2, 0.27))
sketch10.addConstraint(Sketcher.Constraint("DistanceX", 17, 2, 20, 2, 0.27))
sketch10.addConstraint(Sketcher.Constraint("DistanceX", 21, 2, 24, 2, 0.27))
sketch10.addConstraint(Sketcher.Constraint("DistanceX", 25, 2, 28, 2, 0.27))
sketch10.addConstraint(Sketcher.Constraint("DistanceX", 29, 2, 32, 2, 0.27))
sketch10.setExpression("Constraints[107]", "Params.sketch10_height")
pocket9 = body.newObject("PartDesign::Pocket", "Pocket008")
pocket9.Profile = sketch10
pocket9.setExpression("Length", "Params.pocket9_length")

# Sketch on XY plane
sketch11 = body.newObject("Sketcher::SketchObject", "Sketch010")
sketch11.AttachmentSupport = (doc.getObject("XY_Plane"), [""])
sketch11.MapMode = "FlatFace"
sketch11.AttachmentOffset = App.Placement(V(0, 0, -0.95), App.Rotation())
sketch11.addGeometry(Part.LineSegment(V(9, 27, 0), V(9, 5, 0)), False)
sketch11.addGeometry(Part.LineSegment(V(9, 5, 0), V(-9, 5, 0)), False)
sketch11.addGeometry(Part.LineSegment(V(-9, 5, 0), V(-9, 27, 0)), False)
sketch11.addGeometry(Part.ArcOfCircle(Part.Circle(V(0, 7, 0), V(0, 0, 1), 22), math.radians(65), math.radians(115)), False)
sketch11.addConstraint(Sketcher.Constraint("Coincident", 0, 2, 1, 1))
sketch11.addConstraint(Sketcher.Constraint("Coincident", 1, 2, 2, 1))
sketch11.addConstraint(Sketcher.Constraint("Coincident", 2, 2, 3, 2))
sketch11.addConstraint(Sketcher.Constraint("Coincident", 3, 1, 0, 1))
sketch11.addConstraint(Sketcher.Constraint("Vertical", 0))
sketch11.addConstraint(Sketcher.Constraint("Horizontal", 1))
sketch11.addConstraint(Sketcher.Constraint("Vertical", 2))
sketch11.addConstraint(Sketcher.Constraint("Symmetric", 2, 2, 3, 1, -2))
sketch11.addConstraint(Sketcher.Constraint("DistanceX", 1, 2, 1, 1, 18.8))
sketch11.addConstraint(Sketcher.Constraint("DistanceY", -1, 1, 0, 2, 4.6))
sketch11.addConstraint(Sketcher.Constraint("Radius", 3, 22.157407))
sketch11.addConstraint(Sketcher.Constraint("DistanceY", 0, 2, 0, 1, 22.607256))
sketch11.setExpression("Constraints[8]", "Params.sketch11_width")
pocket10 = body.newObject("PartDesign::Pocket", "Pocket009")
pocket10.Profile = sketch11
pocket10.setExpression("Length", "Params.pocket10_length")
pocket10.Reversed = True

# Sketch on XY plane
sketch12 = body.newObject("Sketcher::SketchObject", "Sketch011")
sketch12.AttachmentSupport = (doc.getObject("XY_Plane"), [""])
sketch12.MapMode = "FlatFace"
sketch12.AttachmentOffset = App.Placement(V(0, 0, -0.95), App.Rotation())
add_polygon(sketch12, [(-3.1, 3.5), (3.1, 3.5), (0, 1.6)])  # lines 0-2
sketch12.addConstraint(Sketcher.Constraint("Horizontal", 0))
sketch12.addConstraint(Sketcher.Constraint("PointOnObject", 1, 2, -2))
sketch12.addConstraint(Sketcher.Constraint("Equal", 1, 2))
sketch12.addConstraint(Sketcher.Constraint("DistanceX", 0, 1, 0, 2, 6.3))
sketch12.addConstraint(Sketcher.Constraint("DistanceY", 1, 2, 0, 2, 1.9))
sketch12.addConstraint(Sketcher.Constraint("DistanceY", -1, 1, 0, 2, 3.480741))
sketch12.setExpression("Constraints[6]", "Params.sketch12_width")
pocket11 = body.newObject("PartDesign::Pocket", "Pocket010")
pocket11.Profile = sketch12
pocket11.setExpression("Length", "Params.pocket11_length")
pocket11.Reversed = True

doc.recompute()
